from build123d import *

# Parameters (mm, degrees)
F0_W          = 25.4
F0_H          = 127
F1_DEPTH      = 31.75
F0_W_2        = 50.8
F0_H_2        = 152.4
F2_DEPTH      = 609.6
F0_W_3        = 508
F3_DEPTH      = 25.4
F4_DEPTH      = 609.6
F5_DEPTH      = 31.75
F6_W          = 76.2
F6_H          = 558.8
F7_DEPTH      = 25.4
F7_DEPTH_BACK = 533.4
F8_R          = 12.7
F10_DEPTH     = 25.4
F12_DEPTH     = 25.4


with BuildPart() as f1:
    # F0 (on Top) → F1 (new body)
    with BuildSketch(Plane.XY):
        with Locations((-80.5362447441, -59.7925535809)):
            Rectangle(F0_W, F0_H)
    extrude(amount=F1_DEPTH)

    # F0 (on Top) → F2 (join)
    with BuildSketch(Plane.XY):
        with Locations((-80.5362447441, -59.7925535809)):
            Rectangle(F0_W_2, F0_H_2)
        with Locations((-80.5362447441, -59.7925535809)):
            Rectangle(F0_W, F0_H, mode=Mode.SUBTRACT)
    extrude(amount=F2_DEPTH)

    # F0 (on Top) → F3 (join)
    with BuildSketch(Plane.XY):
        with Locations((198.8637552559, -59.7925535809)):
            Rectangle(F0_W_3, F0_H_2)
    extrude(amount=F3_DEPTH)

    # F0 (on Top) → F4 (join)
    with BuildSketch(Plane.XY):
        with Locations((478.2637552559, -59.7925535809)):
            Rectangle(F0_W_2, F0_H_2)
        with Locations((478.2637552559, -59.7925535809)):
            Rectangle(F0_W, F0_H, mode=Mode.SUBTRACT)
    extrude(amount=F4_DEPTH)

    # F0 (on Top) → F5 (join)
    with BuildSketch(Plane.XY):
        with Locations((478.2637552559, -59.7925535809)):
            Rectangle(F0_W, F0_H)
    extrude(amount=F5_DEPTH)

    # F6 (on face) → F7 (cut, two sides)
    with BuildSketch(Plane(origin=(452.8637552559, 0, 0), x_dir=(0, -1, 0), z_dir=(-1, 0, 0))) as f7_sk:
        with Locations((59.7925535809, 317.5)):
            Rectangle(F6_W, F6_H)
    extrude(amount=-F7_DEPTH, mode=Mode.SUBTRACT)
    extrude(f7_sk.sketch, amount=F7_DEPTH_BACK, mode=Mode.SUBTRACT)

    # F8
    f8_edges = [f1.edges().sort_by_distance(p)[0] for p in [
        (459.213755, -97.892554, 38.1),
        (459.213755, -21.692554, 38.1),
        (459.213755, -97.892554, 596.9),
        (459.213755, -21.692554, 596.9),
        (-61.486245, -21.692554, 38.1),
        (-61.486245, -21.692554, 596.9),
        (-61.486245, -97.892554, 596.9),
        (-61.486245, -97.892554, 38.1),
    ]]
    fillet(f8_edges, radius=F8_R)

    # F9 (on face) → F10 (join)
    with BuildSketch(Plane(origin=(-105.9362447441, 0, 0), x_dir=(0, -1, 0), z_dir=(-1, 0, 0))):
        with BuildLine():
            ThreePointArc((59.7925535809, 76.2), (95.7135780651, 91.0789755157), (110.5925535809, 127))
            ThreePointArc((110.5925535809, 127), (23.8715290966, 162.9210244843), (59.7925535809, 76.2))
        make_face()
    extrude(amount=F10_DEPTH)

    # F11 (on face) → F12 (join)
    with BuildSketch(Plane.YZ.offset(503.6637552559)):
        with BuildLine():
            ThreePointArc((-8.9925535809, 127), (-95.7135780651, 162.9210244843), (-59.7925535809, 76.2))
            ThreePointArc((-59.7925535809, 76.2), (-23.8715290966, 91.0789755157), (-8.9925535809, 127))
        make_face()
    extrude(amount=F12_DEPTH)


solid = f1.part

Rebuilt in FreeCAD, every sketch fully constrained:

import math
import FreeCAD as App
import Part
import Sketcher
from FreeCAD import Vector
Q = App.Units.Quantity


def edges_at(feature, points):
    """Names of the edges that pass closest to the given points."""
    edges = feature.Shape.Edges
    near = lambda p: min(range(len(edges)), key=lambda i: edges[i].distToShape(Part.Vertex(*p))[0])
    return sorted({f"Edge{near(p) + 1}" for p in points})


def add_polygon(sketch, points):
    """Adds a closed chain of lines whose ends are joined by coincident constraints."""
    first, n = sketch.GeometryCount, len(points)
    for a, b in zip(points, points[1:] + points[:1]):
        sketch.addGeometry(Part.LineSegment(App.Vector(*a, 0), App.Vector(*b, 0)), False)
    for i in range(n):
        sketch.addConstraint(Sketcher.Constraint("Coincident", first + i, 2, first + (i + 1) % n, 1))

doc = App.newDocument("Part")
body = doc.addObject("PartDesign::Body", "Body")

sketch1 = body.newObject("Sketcher::SketchObject", "Sketch")
sketch1.AttachmentSupport = (doc.getObject("XY_Plane"), [""])
sketch1.MapMode = "FlatFace"
add_polygon(sketch1, [(-93, 4), (-93, -123), (-68, -123), (-68, 4)])
sketch1.addConstraint(Sketcher.Constraint("Vertical", 0))
sketch1.addConstraint(Sketcher.Constraint("Horizontal", 1))
sketch1.addConstraint(Sketcher.Constraint("Vertical", 2))
sketch1.addConstraint(Sketcher.Constraint("Horizontal", 3))
sketch1.addConstraint(Sketcher.Constraint("DistanceX", 1, 1, 1, 2, Q("1 in")))
sketch1.addConstraint(Sketcher.Constraint("DistanceY", 0, 2, 0, 1, Q("5 in")))
sketch1.addConstraint(Sketcher.Constraint("DistanceX", 0, 2, -1, 1, Q("93.236245 mm")))
sketch1.addConstraint(Sketcher.Constraint("DistanceY", 0, 2, -1, 1, Q("123.292554 mm")))
pad1 = body.newObject("PartDesign::Pad", "Pad")
pad1.Profile = sketch1
pad1.Length = Q("1.25 in")

sketch2 = body.newObject("Sketcher::SketchObject", "Sketch001")
sketch2.AttachmentSupport = (doc.getObject("XY_Plane"), [""])
sketch2.MapMode = "FlatFace"
add_polygon(sketch2, [(-106, 16), (-106, -136), (-55, -136), (-55, 16)])
add_polygon(sketch2, [(-68, -123), (-93, -123), (-93, 4), (-68, 4)])
sketch2.addConstraint(Sketcher.Constraint("Vertical", 0))
sketch2.addConstraint(Sketcher.Constraint("Horizontal", 1))
sketch2.addConstraint(Sketcher.Constraint("Vertical", 2))
sketch2.addConstraint(Sketcher.Constraint("Horizontal", 3))
sketch2.addConstraint(Sketcher.Constraint("Horizontal", 4))
sketch2.addConstraint(Sketcher.Constraint("Vertical", 5))
sketch2.addConstraint(Sketcher.Constraint("Horizontal", 6))
sketch2.addConstraint(Sketcher.Constraint("Vertical", 7))
sketch2.addConstraint(Sketcher.Constraint("DistanceX", 1, 1, 1, 2, Q("2 in")))
sketch2.addConstraint(Sketcher.Constraint("DistanceX", 4, 2, 4, 1, Q("1 in")))
sketch2.addConstraint(Sketcher.Constraint("DistanceY", 0, 2, 0, 1, Q("6 in")))
sketch2.addConstraint(Sketcher.Constraint("DistanceY", 5, 1, 5, 2, Q("5 in")))
sketch2.addConstraint(Sketcher.Constraint("DistanceX", 0, 2, 4, 2, Q("0.5 in")))
sketch2.addConstraint(Sketcher.Constraint("DistanceY", 0, 2, 4, 2, Q("0.5 in")))
sketch2.addConstraint(Sketcher.Constraint("DistanceX", 0, 2, -1, 1, Q("105.936245 mm")))
sketch2.addConstraint(Sketcher.Constraint("DistanceY", 0, 2, -1, 1, Q("135.992554 mm")))
pad2 = body.newObject("PartDesign::Pad", "Pad001")
pad2.Profile = sketch2
pad2.Length = Q("24 in")

sketch3 = body.newObject("Sketcher::SketchObject", "Sketch002")
sketch3.AttachmentSupport = (doc.getObject("XY_Plane"), [""])
sketch3.MapMode = "FlatFace"
add_polygon(sketch3, [(-55, 16), (-55, -136), (453, -136), (453, 16)])
sketch3.addConstraint(Sketcher.Constraint("Vertical", 0))
sketch3.addConstraint(Sketcher.Constraint("Horizontal", 1))
sketch3.addConstraint(Sketcher.Constraint("Vertical", 2))
sketch3.addConstraint(Sketcher.Constraint("Horizontal", 3))
sketch3.addConstraint(Sketcher.Constraint("DistanceX", 1, 1, 1, 2, Q("20 in")))
sketch3.addConstraint(Sketcher.Constraint("DistanceY", 0, 2, 0, 1, Q("6 in")))
sketch3.addConstraint(Sketcher.Constraint("DistanceX", 0, 2, -1, 1, Q("55.136245 mm")))
sketch3.addConstraint(Sketcher.Constraint("DistanceY", 0, 2, -1, 1, Q("135.992554 mm")))
pad3 = body.newObject("PartDesign::Pad", "Pad002")
pad3.Profile = sketch3
pad3.Length = Q("1 in")

sketch4 = body.newObject("Sketcher::SketchObject", "Sketch003")
sketch4.AttachmentSupport = (doc.getObject("XY_Plane"), [""])
sketch4.MapMode = "FlatFace"
add_polygon(sketch4, [(453, 16), (453, -136), (504, -136), (504, 16)])
add_polygon(sketch4, [(491, -123), (466, -123), (466, 4), (491, 4)])
sketch4.addConstraint(Sketcher.Constraint("Vertical", 0))
sketch4.addConstraint(Sketcher.Constraint("Horizontal", 1))
sketch4.addConstraint(Sketcher.Constraint("Vertical", 2))
sketch4.addConstraint(Sketcher.Constraint("Horizontal", 3))
sketch4.addConstraint(Sketcher.Constraint("Horizontal", 4))
sketch4.addConstraint(Sketcher.Constraint("Vertical", 5))
sketch4.addConstraint(Sketcher.Constraint("Horizontal", 6))
sketch4.addConstraint(Sketcher.Constraint("Vertical", 7))
sketch4.addConstraint(Sketcher.Constraint("DistanceX", 1, 1, 1, 2, Q("2 in")))
sketch4.addConstraint(Sketcher.Constraint("DistanceX", 4, 2, 4, 1, Q("1 in")))
sketch4.addConstraint(Sketcher.Constraint("DistanceY", 0, 2, 0, 1, Q("6 in")))
sketch4.addConstraint(Sketcher.Constraint("DistanceY", 5, 1, 5, 2, Q("5 in")))
sketch4.addConstraint(Sketcher.Constraint("DistanceX", 0, 2, 4, 2, Q("0.5 in")))
sketch4.addConstraint(Sketcher.Constraint("DistanceY", 0, 2, 4, 2, Q("0.5 in")))
sketch4.addConstraint(Sketcher.Constraint("DistanceX", -1, 1, 0, 2, Q("452.863755 mm")))
sketch4.addConstraint(Sketcher.Constraint("DistanceY", 0, 2, -1, 1, Q("135.992554 mm")))
pad4 = body.newObject("PartDesign::Pad", "Pad003")
pad4.Profile = sketch4
pad4.Length = Q("24 in")

sketch5 = body.newObject("Sketcher::SketchObject", "Sketch004")
sketch5.AttachmentSupport = (doc.getObject("XY_Plane"), [""])
sketch5.MapMode = "FlatFace"
add_polygon(sketch5, [(466, 4), (466, -123), (491, -123), (491, 4)])
sketch5.addConstraint(Sketcher.Constraint("Vertical", 0))
sketch5.addConstraint(Sketcher.Constraint("Horizontal", 1))
sketch5.addConstraint(Sketcher.Constraint("Vertical", 2))
sketch5.addConstraint(Sketcher.Constraint("Horizontal", 3))
sketch5.addConstraint(Sketcher.Constraint("DistanceX", 1, 1, 1, 2, Q("1 in")))
sketch5.addConstraint(Sketcher.Constraint("DistanceY", 0, 2, 0, 1, Q("5 in")))
sketch5.addConstraint(Sketcher.Constraint("DistanceX", -1, 1, 0, 2, Q("465.563755 mm")))
sketch5.addConstraint(Sketcher.Constraint("DistanceY", 0, 2, -1, 1, Q("123.292554 mm")))
pad5 = body.newObject("PartDesign::Pad", "Pad004")
pad5.Profile = sketch5
pad5.Length = Q("1.25 in")

sketch6 = body.newObject("Sketcher::SketchObject", "Sketch005")
sketch6.AttachmentSupport = (doc.getObject("YZ_Plane"), [""])
sketch6.MapMode = "FlatFace"
sketch6.AttachmentOffset = App.Placement(Vector(0, 0, 452.863755), App.Rotation())
add_polygon(sketch6, [(-22, 597), (-22, 38), (-98, 38), (-98, 597)])
sketch6.addConstraint(Sketcher.Constraint("Vertical", 0))
sketch6.addConstraint(Sketcher.Constraint("Horizontal", 1))
sketch6.addConstraint(Sketcher.Constraint("Vertical", 2))
sketch6.addConstraint(Sketcher.Constraint("Horizontal", 3))
sketch6.addConstraint(Sketcher.Constraint("DistanceX", 1, 2, 1, 1, Q("3 in")))
sketch6.addConstraint(Sketcher.Constraint("DistanceY", 0, 2, 0, 1, Q("22 in")))
sketch6.addConstraint(Sketcher.Constraint("DistanceY", -1, 1, 0, 2, Q("1.5 in")))
sketch6.addConstraint(Sketcher.Constraint("DistanceX", 0, 2, -1, 1, Q("21.692554 mm")))
pocket1 = body.newObject("PartDesign::Pocket", "Pocket")
pocket1.Profile = sketch6
pocket1.Type = "TwoLengths"
pocket1.Length = Q("1 in")
pocket1.Length2 = Q("21 in")
pocket1.Reversed = True
doc.recompute()

fillet = body.newObject("PartDesign::Fillet", "Fillet")
fillet.Base = (pocket1, edges_at(pocket1, [
    (459.214, -97.893, 38.1),
    (459.214, -21.693, 38.1),
    (459.214, -97.893, 596.9),
    (459.214, -21.693, 596.9),
    (-61.486, -21.693, 38.1),
    (-61.486, -21.693, 596.9),
    (-61.486, -97.893, 596.9),
    (-61.486, -97.893, 38.1),
]))
fillet.Radius = Q("0.5 in")

sketch7 = body.newObject("Sketcher::SketchObject", "Sketch006")
sketch7.AttachmentSupport = (doc.getObject("YZ_Plane"), [""])
sketch7.MapMode = "FlatFace"
sketch7.AttachmentOffset = App.Placement(Vector(0, 0, -105.936245), App.Rotation())
sketch7.addGeometry(Part.ArcOfCircle(Part.Circle(Vector(-60, 127, 0), Vector(0, 0, 1), 51), math.radians(180), math.radians(270)), False)
sketch7.addGeometry(Part.ArcOfCircle(Part.Circle(Vector(-60, 127, 0), Vector(0, 0, 1), 51), math.radians(-90), math.radians(180)), False)
sketch7.addConstraint(Sketcher.Constraint("Tangent", 0, 1, 1, 2))
sketch7.addConstraint(Sketcher.Constraint("Coincident", 1, 1, 0, 2))
sketch7.addConstraint(Sketcher.Constraint("Horizontal", 1, 3, 0, 1))
sketch7.addConstraint(Sketcher.Constraint("Vertical", 0, 3, 1, 1))
sketch7.addConstraint(Sketcher.Constraint("Radius", 0, Q("2 in")))
sketch7.addConstraint(Sketcher.Constraint("DistanceY", -1, 1, 0, 3, Q("5 in")))
sketch7.addConstraint(Sketcher.Constraint("DistanceX", 0, 3, -1, 1, Q("59.792554 mm")))
pad6 = body.newObject("PartDesign::Pad", "Pad005")
pad6.Profile = sketch7
pad6.Length = Q("1 in")
pad6.Reversed = True

sketch8 = body.newObject("Sketcher::SketchObject", "Sketch007")
sketch8.AttachmentSupport = (doc.getObject("YZ_Plane"), [""])
sketch8.MapMode = "FlatFace"
sketch8.AttachmentOffset = App.Placement(Vector(0, 0, 503.663755), App.Rotation())
sketch8.addGeometry(Part.ArcOfCircle(Part.Circle(Vector(-60, 127, 0), Vector(0, 0, 1), 51), math.radians(0), math.radians(270)), False)
sketch8.addGeometry(Part.ArcOfCircle(Part.Circle(Vector(-60, 127, 0), Vector(0, 0, 1), 51), math.radians(-90), math.radians(0)), False)
sketch8.addConstraint(Sketcher.Constraint("Tangent", 0, 1, 1, 2))
sketch8.addConstraint(Sketcher.Constraint("Coincident", 1, 1, 0, 2))
sketch8.addConstraint(Sketcher.Constraint("Horizontal", 1, 3, 0, 1))
sketch8.addConstraint(Sketcher.Constraint("Vertical", 0, 3, 1, 1))
sketch8.addConstraint(Sketcher.Constraint("Radius", 0, Q("2 in")))
sketch8.addConstraint(Sketcher.Constraint("DistanceY", -1, 1, 0, 3, Q("5 in")))
sketch8.addConstraint(Sketcher.Constraint("DistanceX", 0, 3, -1, 1, Q("59.792554 mm")))
pad7 = body.newObject("PartDesign::Pad", "Pad006")
pad7.Profile = sketch8
pad7.Length = Q("1 in")

doc.recompute()
